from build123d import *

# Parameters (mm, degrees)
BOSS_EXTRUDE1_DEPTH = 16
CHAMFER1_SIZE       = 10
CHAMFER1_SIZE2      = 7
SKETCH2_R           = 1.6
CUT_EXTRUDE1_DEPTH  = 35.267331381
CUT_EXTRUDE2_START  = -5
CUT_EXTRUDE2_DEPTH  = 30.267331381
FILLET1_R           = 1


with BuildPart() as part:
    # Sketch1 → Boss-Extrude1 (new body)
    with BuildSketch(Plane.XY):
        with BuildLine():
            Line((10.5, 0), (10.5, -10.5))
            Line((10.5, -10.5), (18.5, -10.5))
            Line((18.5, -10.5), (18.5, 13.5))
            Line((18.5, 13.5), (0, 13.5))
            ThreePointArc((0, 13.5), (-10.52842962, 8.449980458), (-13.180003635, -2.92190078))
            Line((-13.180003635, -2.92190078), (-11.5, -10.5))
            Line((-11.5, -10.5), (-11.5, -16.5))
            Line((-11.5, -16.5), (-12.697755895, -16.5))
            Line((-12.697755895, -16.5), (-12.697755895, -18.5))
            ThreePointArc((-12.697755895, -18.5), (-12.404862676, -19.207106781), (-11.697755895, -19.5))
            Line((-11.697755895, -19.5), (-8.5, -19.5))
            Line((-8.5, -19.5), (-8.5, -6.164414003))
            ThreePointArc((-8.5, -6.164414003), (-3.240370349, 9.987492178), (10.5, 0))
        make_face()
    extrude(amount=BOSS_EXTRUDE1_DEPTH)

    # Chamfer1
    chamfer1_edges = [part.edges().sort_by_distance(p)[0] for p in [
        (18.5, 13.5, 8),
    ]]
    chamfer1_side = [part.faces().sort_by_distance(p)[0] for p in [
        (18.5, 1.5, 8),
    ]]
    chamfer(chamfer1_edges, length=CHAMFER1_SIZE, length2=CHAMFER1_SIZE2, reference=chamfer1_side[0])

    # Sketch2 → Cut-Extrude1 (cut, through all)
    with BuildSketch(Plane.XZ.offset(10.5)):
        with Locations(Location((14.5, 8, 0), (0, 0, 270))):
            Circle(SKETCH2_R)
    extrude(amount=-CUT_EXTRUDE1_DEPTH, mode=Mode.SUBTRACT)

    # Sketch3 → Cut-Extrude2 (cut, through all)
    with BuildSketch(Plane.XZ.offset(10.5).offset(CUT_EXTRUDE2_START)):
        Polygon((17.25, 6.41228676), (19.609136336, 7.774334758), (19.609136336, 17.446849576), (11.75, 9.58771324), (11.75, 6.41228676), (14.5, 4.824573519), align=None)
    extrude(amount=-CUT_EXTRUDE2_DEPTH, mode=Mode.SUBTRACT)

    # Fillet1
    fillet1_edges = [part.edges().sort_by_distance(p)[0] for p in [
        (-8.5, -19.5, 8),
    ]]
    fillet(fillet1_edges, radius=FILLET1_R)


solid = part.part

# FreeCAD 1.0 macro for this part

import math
import FreeCAD as App
import Part
import Sketcher
Q = App.Units.Quantity


def edges_at(feature, points):
    """Names of the edges that pass closest to the given points."""
    edges = feature.Shape.Edges
    near = lambda p: min(range(len(edges)), key=lambda i: edges[i].distToShape(Part.Vertex(*p))[0])
    return sorted({f"Edge{near(p) + 1}" for p in points})


def add_polygon(sketch, points):
    """Adds a closed chain of lines whose ends are joined by coincident constraints."""
    first, n = sketch.GeometryCount, len(points)
    for a, b in zip(points, points[1:] + points[:1]):
        sketch.addGeometry(Part.LineSegment(App.Vector(*a, 0), App.Vector(*b, 0)), False)
    for i in range(n):
        sketch.addConstraint(Sketcher.Constraint("Coincident", first + i, 2, first + (i + 1) % n, 1))

doc = App.newDocument("Part")
body = doc.addObject("PartDesign::Body", "Body")

sketch1 = body.newObject("Sketcher::SketchObject", "Sketch")
sketch1.AttachmentSupport = (doc.getObject("XY_Plane"), [""])
sketch1.MapMode = "FlatFace"
sketch1.addGeometry([
    Part.LineSegment(App.Vector(10.5, 0, 0), App.Vector(10.5, -10.5, 0)),
    Part.LineSegment(App.Vector(10.5, -10.5, 0), App.Vector(18.5, -10.5, 0)),
    Part.LineSegment(App.Vector(18.5, -10.5, 0), App.Vector(18.5, 13.5, 0)),
    Part.LineSegment(App.Vector(18.5, 13.5, 0), App.Vector(0, 13.5, 0)),
    Part.ArcOfCircle(Part.Circle(App.Vector(0, 0, 0), App.Vector(0, 0, 1), 13.5), math.radians(90), math.radians(192)),
    Part.LineSegment(App.Vector(-13.2, -2.9, 0), App.Vector(-11.5, -10.5, 0)),
    Part.LineSegment(App.Vector(-11.5, -10.5, 0), App.Vector(-11.5, -16.5, 0)),
    Part.LineSegment(App.Vector(-11.5, -16.5, 0), App.Vector(-12.7, -16.5, 0)),
    Part.LineSegment(App.Vector(-12.7, -16.5, 0), App.Vector(-12.7, -18.5, 0)),
    Part.ArcOfCircle(Part.Circle(App.Vector(-11.7, -18.5, 0), App.Vector(0, 0, 1), 1), math.radians(-180), math.radians(-90)),
    Part.LineSegment(App.Vector(-11.7, -19.5, 0), App.Vector(-8.5, -19.5, 0)),
    Part.LineSegment(App.Vector(-8.5, -19.5, 0), App.Vector(-8.5, -6.2, 0)),
    Part.ArcOfCircle(Part.Circle(App.Vector(0, 0, 0), App.Vector(0, 0, 1), 10.5), math.radians(0), math.radians(216)),
], False)
sketch1.addConstraint([
    Sketcher.Constraint("Coincident", 0, 2, 1, 1),
    Sketcher.Constraint("Coincident", 1, 2, 2, 1),
    Sketcher.Constraint("Coincident", 2, 2, 3, 1),
    Sketcher.Constraint("Tangent", 3, 2, 4, 1),
    Sketcher.Constraint("Tangent", 4, 2, 5, 1),
    Sketcher.Constraint("Coincident", 5, 2, 6, 1),
    Sketcher.Constraint("Coincident", 6, 2, 7, 1),
    Sketcher.Constraint("Coincident", 7, 2, 8, 1),
    Sketcher.Constraint("Tangent", 8, 2, 9, 1),
    Sketcher.Constraint("Tangent", 9, 2, 10, 1),
    Sketcher.Constraint("Coincident", 10, 2, 11, 1),
    Sketcher.Constraint("Coincident", 11, 2, 12, 2),
    Sketcher.Constraint("Tangent", 12, 1, 0, 1),
    Sketcher.Constraint("Vertical", 0),
    Sketcher.Constraint("Horizontal", 1),
    Sketcher.Constraint("Vertical", 2),
    Sketcher.Constraint("Horizontal", 3),
    Sketcher.Constraint("Vertical", 6),
    Sketcher.Constraint("Horizontal", 7),
    Sketcher.Constraint("Vertical", 8),
    Sketcher.Constraint("Horizontal", 10),
    Sketcher.Constraint("Vertical", 11),
    Sketcher.Constraint("Coincident", 4, 3, -1, 1),
    Sketcher.Constraint("Coincident", 12, 3, -1, 1),
    Sketcher.Constraint("Horizontal", 1, 2, 5, 2),
    Sketcher.Constraint("Radius", 9, 1.0),
    Sketcher.Constraint("Radius", 4, 13.5),
    Sketcher.Constraint("Radius", 12, 10.5),
    Sketcher.Constraint("DistanceX", 1, 1, 1, 2, 8.0),
    Sketcher.Constraint("DistanceY", 2, 1, 2, 2, 24.0),
    Sketcher.Constraint("DistanceY", 6, 2, 6, 1, 6.0),
    Sketcher.Constraint("DistanceY", 8, 2, 8, 1, 2.0),
    Sketcher.Constraint("DistanceX", 5, 2, 0, 2, 22.0),
    Sketcher.Constraint("DistanceX", 6, 2, 10, 2, 3.0),
    Sketcher.Constraint("DistanceX", 7, 2, 7, 1, 1.197756),
])
pad1 = body.newObject("PartDesign::Pad", "Pad")
pad1.Profile = sketch1
pad1.Length = 16
doc.recompute()

chamfer = body.newObject("PartDesign::Chamfer", "Chamfer")
chamfer.Base = (pad1, edges_at(pad1, [(18.5, 13.5, 8)]))
chamfer.ChamferType = "Two distances"
chamfer.Size = 10
chamfer.Size2 = 7

sketch2 = body.newObject("Sketcher::SketchObject", "Sketch001")
sketch2.AttachmentSupport = (doc.getObject("XZ_Plane"), [""])
sketch2.MapMode = "FlatFace"
sketch2.AttachmentOffset = App.Placement(App.Vector(0, 0, 10.5), App.Rotation())
sketch2.addGeometry(Part.Circle(App.Vector(14.5, 8, 0), App.Vector(0, 0, 1), 1.6), False)
sketch2.addConstraint([
    Sketcher.Constraint("Diameter", 0, 3.2),
    Sketcher.Constraint("DistanceY", -1, 1, 0, 3, 8.0),
    Sketcher.Constraint("DistanceX", -1, 1, 0, 3, 14.5),
])
pocket1 = body.newObject("PartDesign::Pocket", "Pocket")
pocket1.Profile = sketch2
pocket1.Type = "ThroughAll"

sketch3 = body.newObject("Sketcher::SketchObject", "Sketch002")
sketch3.AttachmentSupport = (doc.getObject("XZ_Plane"), [""])
sketch3.MapMode = "FlatFace"
sketch3.AttachmentOffset = App.Placement(App.Vector(0, 0, 5.5), App.Rotation())
add_polygon(sketch3, [(17.2, 6.4), (19.6, 7.8), (19.6, 17.4), (11.8, 9.6), (11.8, 6.4), (14.5, 4.8)])
sketch3.addConstraint([
    Sketcher.Constraint("Vertical", 1),
    Sketcher.Constraint("Vertical", 3),
    Sketcher.Constraint("Parallel", 0, 5),
    Sketcher.Constraint("Horizontal", 3, 2, 5, 2),
    Sketcher.Constraint("Equal", 4, 5),
    Sketcher.Constraint("Angle", 0, Q("30 deg")),
    Sketcher.Constraint("Angle", 2, Q("-135 deg")),
    Sketcher.Constraint("DistanceX", -1, 1, 4, 2, 14.5),
    Sketcher.Constraint("DistanceX", 3, 2, 5, 2, 5.5),
    Sketcher.Constraint("DistanceY", 1, 1, 1, 2, 9.672515),
    Sketcher.Constraint("DistanceY", 3, 2, 3, 1, 3.175426),
    Sketcher.Constraint("DistanceY", -1, 1, 1, 2, 17.44685),
])
pocket2 = body.newObject("PartDesign::Pocket", "Pocket001")
pocket2.Profile = sketch3
pocket2.Type = "ThroughAll"
doc.recompute()

fillet = body.newObject("PartDesign::Fillet", "Fillet")
fillet.Base = (pocket2, edges_at(pocket2, [(-8.5, -19.5, 8)]))
fillet.Radius = 1

doc.recompute()
